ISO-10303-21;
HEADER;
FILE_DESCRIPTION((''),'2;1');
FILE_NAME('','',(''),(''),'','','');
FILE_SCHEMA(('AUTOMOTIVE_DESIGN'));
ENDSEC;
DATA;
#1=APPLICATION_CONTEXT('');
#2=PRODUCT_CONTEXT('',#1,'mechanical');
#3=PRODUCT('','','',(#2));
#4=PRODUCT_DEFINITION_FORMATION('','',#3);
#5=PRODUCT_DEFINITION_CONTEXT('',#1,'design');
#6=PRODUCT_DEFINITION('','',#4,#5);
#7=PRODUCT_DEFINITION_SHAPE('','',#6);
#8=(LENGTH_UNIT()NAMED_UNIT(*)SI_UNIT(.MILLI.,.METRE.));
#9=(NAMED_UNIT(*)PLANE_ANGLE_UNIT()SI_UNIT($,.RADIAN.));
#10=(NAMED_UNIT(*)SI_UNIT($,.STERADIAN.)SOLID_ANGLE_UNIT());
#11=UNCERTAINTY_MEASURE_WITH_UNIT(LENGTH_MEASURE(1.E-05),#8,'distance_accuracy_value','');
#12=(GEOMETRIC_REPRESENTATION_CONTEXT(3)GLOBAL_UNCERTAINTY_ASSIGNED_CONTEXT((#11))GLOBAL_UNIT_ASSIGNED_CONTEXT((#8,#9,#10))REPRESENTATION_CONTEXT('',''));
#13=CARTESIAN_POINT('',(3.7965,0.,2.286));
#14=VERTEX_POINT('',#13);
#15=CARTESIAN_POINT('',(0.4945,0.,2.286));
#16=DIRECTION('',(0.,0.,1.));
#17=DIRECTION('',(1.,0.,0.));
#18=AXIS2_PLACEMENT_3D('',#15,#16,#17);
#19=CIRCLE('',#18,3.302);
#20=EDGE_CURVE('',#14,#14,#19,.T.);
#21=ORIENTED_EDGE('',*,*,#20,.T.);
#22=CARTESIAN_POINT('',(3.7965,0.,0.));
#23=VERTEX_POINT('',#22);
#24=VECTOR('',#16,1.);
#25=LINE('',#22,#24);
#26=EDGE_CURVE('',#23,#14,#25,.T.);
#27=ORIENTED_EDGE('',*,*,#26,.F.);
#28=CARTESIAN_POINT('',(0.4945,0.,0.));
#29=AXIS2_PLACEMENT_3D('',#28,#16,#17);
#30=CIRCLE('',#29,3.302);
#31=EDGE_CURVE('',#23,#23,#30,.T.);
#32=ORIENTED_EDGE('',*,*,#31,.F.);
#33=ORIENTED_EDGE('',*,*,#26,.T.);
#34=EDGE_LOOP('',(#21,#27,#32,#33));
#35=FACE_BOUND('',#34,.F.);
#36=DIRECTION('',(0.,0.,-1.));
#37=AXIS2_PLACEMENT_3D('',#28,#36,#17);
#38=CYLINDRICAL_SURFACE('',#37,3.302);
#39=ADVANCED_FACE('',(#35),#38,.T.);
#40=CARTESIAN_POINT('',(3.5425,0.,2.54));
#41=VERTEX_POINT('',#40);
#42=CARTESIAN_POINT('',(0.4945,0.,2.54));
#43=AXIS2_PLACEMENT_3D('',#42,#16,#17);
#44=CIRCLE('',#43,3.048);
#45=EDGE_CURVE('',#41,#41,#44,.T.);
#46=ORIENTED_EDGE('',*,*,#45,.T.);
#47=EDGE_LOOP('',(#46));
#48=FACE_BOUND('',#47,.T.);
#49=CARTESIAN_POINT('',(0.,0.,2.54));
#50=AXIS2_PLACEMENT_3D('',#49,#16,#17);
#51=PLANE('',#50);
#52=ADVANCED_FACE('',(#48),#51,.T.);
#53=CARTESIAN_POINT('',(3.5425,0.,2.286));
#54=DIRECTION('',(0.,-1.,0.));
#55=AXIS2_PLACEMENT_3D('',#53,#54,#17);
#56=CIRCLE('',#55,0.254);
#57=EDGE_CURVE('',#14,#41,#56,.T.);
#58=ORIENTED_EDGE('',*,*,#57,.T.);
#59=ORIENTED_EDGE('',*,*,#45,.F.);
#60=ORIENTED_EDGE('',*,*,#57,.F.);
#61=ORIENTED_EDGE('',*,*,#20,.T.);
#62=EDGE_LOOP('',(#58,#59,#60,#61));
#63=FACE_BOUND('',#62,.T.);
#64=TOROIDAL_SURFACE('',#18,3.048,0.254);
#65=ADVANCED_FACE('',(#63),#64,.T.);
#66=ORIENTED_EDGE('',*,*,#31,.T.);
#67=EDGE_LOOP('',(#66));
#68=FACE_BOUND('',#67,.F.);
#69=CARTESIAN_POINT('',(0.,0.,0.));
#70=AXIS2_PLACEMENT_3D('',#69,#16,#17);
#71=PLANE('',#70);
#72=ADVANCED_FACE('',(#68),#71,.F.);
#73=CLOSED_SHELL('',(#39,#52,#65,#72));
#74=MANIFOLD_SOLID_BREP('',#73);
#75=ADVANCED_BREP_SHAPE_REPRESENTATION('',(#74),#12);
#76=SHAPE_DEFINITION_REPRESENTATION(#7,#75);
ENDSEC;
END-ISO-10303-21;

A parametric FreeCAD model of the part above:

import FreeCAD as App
import Part
import Sketcher
from FreeCAD import Vector
Q = App.Units.Quantity


def edges_at(feature, points):
    """Names of the edges that pass closest to the given points."""
    edges = feature.Shape.Edges
    near = lambda p: min(range(len(edges)), key=lambda i: edges[i].distToShape(Part.Vertex(*p))[0])
    return sorted({f"Edge{near(p) + 1}" for p in points})

doc = App.newDocument("Part")
body = doc.addObject("PartDesign::Body", "Body")

# Sketch on XY plane
sketch1 = body.newObject("Sketcher::SketchObject", "Sketch")
sketch1.AttachmentSupport = (doc.getObject("XY_Plane"), [""])
sketch1.MapMode = "FlatFace"
sketch1.addGeometry(Part.Circle(Vector(0.5, 0, 0), Vector(0, 0, 1), 3.3), False)
sketch1.addConstraint(Sketcher.Constraint("PointOnObject", 0, 3, -1))
sketch1.addConstraint(Sketcher.Constraint("Diameter", 0, Q("0.26 in")))
sketch1.addConstraint(Sketcher.Constraint("DistanceX", -1, 1, 0, 3, Q("0.4945 mm")))
pad1 = body.newObject("PartDesign::Pad", "Pad")
pad1.Profile = sketch1
pad1.Length = Q("0.1 in")
doc.recompute()

fillet = body.newObject("PartDesign::Fillet", "Fillet")
fillet.Base = (pad1, edges_at(pad1, [(-2.808, 0, 2.54)]))
fillet.Radius = Q("0.01 in")

doc.recompute()
